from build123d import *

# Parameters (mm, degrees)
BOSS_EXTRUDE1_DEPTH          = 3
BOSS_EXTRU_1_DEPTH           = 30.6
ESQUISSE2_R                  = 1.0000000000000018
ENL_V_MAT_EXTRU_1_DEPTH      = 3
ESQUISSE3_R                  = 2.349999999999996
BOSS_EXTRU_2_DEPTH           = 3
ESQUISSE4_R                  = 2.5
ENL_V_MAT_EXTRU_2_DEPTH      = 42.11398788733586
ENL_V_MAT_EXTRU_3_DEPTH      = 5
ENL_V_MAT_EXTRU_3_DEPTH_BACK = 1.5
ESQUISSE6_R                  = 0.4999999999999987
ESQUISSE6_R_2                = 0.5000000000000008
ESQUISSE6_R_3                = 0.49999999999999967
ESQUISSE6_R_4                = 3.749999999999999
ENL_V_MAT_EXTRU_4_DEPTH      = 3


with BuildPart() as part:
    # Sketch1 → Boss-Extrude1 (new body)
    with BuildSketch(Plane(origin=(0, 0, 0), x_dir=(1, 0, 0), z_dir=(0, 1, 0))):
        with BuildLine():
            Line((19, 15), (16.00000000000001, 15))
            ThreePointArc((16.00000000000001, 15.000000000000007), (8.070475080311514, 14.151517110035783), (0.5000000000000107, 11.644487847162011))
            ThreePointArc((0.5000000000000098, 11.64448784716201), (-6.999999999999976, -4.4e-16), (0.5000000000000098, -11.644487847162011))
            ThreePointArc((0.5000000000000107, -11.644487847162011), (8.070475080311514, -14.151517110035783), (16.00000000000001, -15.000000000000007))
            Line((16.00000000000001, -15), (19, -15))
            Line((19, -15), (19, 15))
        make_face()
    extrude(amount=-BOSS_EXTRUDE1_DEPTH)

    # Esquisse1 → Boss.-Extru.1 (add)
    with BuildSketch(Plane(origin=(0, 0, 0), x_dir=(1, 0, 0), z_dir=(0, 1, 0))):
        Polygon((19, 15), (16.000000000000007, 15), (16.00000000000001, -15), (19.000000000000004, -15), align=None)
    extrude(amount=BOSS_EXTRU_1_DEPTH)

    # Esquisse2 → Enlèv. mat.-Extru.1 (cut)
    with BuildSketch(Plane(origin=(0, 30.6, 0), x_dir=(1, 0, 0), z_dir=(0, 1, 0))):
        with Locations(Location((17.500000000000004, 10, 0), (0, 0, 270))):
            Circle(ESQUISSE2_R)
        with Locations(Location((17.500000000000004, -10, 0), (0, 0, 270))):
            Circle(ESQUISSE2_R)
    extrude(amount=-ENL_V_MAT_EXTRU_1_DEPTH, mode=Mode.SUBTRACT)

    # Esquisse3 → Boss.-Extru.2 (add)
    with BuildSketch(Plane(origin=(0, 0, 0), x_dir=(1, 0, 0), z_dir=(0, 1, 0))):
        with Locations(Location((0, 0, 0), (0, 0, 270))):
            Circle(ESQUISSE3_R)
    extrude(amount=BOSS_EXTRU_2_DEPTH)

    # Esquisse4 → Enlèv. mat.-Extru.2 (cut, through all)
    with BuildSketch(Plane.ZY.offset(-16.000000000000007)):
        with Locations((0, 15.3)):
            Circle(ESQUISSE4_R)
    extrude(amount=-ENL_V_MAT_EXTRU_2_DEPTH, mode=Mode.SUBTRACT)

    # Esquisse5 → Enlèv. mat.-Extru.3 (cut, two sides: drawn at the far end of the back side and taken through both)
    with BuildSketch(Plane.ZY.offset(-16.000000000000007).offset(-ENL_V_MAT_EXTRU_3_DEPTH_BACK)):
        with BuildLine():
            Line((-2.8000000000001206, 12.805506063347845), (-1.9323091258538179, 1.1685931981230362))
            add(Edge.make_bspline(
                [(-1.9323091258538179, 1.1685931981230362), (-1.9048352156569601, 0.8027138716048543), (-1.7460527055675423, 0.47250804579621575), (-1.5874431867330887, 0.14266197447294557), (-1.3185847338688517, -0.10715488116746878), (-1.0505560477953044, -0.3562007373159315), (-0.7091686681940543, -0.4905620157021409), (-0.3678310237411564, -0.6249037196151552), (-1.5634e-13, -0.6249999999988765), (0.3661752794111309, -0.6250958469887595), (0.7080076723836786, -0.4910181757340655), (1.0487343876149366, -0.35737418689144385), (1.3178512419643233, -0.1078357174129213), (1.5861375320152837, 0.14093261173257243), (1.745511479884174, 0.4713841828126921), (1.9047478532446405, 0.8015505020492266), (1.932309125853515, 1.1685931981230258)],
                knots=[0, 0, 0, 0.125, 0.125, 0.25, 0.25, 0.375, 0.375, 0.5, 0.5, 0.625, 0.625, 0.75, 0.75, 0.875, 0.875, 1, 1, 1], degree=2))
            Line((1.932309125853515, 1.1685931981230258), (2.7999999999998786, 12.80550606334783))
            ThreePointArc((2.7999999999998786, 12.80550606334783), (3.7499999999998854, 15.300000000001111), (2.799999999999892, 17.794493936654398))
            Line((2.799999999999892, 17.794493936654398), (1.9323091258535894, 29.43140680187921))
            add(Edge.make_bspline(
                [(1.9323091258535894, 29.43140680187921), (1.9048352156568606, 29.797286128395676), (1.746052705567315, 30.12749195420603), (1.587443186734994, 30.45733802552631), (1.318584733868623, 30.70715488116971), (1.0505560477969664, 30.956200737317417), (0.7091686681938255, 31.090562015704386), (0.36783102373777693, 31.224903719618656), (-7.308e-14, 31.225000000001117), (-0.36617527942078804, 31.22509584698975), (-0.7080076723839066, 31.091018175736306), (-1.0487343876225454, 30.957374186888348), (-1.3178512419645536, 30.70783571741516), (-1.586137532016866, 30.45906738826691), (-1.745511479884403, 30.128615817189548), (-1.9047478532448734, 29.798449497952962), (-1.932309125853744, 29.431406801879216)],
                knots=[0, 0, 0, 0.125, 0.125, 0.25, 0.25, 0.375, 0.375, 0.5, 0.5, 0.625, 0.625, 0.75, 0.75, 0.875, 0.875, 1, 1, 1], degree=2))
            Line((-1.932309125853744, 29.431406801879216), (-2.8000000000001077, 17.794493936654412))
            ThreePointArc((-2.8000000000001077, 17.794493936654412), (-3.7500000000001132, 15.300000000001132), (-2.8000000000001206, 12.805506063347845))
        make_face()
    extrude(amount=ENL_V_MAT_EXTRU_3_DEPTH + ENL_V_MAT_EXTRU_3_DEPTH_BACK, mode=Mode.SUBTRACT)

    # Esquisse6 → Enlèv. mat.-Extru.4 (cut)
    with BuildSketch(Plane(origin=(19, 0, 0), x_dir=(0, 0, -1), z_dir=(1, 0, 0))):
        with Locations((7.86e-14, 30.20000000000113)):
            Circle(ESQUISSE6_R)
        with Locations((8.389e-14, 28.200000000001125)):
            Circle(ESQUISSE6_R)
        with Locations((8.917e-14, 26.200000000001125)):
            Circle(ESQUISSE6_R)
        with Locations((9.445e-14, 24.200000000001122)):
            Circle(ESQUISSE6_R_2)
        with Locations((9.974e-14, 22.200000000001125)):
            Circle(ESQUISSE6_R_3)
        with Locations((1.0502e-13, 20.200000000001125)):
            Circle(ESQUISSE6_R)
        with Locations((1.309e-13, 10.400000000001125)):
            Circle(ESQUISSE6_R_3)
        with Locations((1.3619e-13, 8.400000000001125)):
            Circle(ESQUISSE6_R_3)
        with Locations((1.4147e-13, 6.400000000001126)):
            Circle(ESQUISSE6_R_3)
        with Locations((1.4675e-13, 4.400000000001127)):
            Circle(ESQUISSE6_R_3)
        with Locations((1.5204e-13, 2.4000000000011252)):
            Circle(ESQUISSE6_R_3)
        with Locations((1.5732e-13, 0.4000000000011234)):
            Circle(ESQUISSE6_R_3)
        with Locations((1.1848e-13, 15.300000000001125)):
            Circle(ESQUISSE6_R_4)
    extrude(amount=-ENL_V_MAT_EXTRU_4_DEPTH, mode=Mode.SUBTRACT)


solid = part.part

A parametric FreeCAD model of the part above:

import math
import FreeCAD as App
import Part
import Sketcher
Q = App.Units.Quantity


def add_polygon(sketch, points):
    """Adds a closed chain of lines whose ends are joined by coincident constraints."""
    first, n = sketch.GeometryCount, len(points)
    for a, b in zip(points, points[1:] + points[:1]):
        sketch.addGeometry(Part.LineSegment(App.Vector(*a, 0), App.Vector(*b, 0)), False)
    for i in range(n):
        sketch.addConstraint(Sketcher.Constraint("Coincident", first + i, 2, first + (i + 1) % n, 1))

doc = App.newDocument("Part")
body = doc.addObject("PartDesign::Body", "Body")

sketch1 = doc.addObject("Sketcher::SketchObject", "Sketch")
body.addObject(sketch1)
sketch1.AttachmentSupport = (doc.XZ_Plane, [""])
sketch1.MapMode = "FlatFace"
sketch1.addGeometry(Part.LineSegment(App.Vector(19, -15, 0), App.Vector(16, -15, 0)), False)
sketch1.addGeometry(Part.ArcOfCircle(Part.Circle(App.Vector(16, 22.47706, 0), App.Vector(0, 0, 1), 37.47706), math.radians(-114.430323), math.radians(-90)), False)
sketch1.addGeometry(Part.ArcOfCircle(Part.Circle(App.Vector(5.789606, 0, 0), App.Vector(0, 0, 1), 12.789606), math.radians(114.430323), math.radians(245.569677)), False)
sketch1.addGeometry(Part.ArcOfCircle(Part.Circle(App.Vector(16, -22.47706, 0), App.Vector(0, 0, 1), 37.47706), math.radians(90), math.radians(114.430323)), False)
sketch1.addGeometry(Part.LineSegment(App.Vector(16, 15, 0), App.Vector(19, 15, 0)), False)
sketch1.addGeometry(Part.LineSegment(App.Vector(19, 15, 0), App.Vector(19, -15, 0)), False)
sketch1.addConstraint(Sketcher.Constraint("Tangent", 0, 2, 1, 2))
sketch1.addConstraint(Sketcher.Constraint("Tangent", 1, 1, 2, 2))
sketch1.addConstraint(Sketcher.Constraint("Tangent", 2, 1, 3, 2))
sketch1.addConstraint(Sketcher.Constraint("Tangent", 3, 1, 4, 1))
sketch1.addConstraint(Sketcher.Constraint("Coincident", 4, 2, 5, 1))
sketch1.addConstraint(Sketcher.Constraint("Coincident", 5, 2, 0, 1))
sketch1.addConstraint(Sketcher.Constraint("Horizontal", 0))
sketch1.addConstraint(Sketcher.Constraint("Horizontal", 4))
sketch1.addConstraint(Sketcher.Constraint("Vertical", 5))
sketch1.addConstraint(Sketcher.Constraint("Equal", 1, 3))
sketch1.addConstraint(Sketcher.Constraint("Symmetric", 1, 3, 3, 3, -1))
sketch1.addConstraint(Sketcher.Constraint("DistanceX", 0, 2, 0, 1, Q("3 mm")))
sketch1.addConstraint(Sketcher.Constraint("DistanceY", 5, 2, 5, 1, Q("30 mm")))
sketch1.addConstraint(Sketcher.Constraint("DistanceX", -1, 1, 1, 3, Q("16 mm")))
sketch1.addConstraint(Sketcher.Constraint("DistanceX", -1, 1, 1, 1, Q("0.5 mm")))
sketch1.addConstraint(Sketcher.Constraint("Radius", 1, Q("37.47706 mm")))
pad1 = doc.addObject("PartDesign::Pad", "Pad")
body.addObject(pad1)
pad1.Profile = sketch1
pad1.Length = 3

sketch2 = doc.addObject("Sketcher::SketchObject", "Sketch001")
body.addObject(sketch2)
sketch2.AttachmentSupport = (doc.XZ_Plane, [""])
sketch2.MapMode = "FlatFace"
add_polygon(sketch2, [(19, -15), (16, -15), (16, 15), (19, 15)])
sketch2.addConstraint(Sketcher.Constraint("Horizontal", 0))
sketch2.addConstraint(Sketcher.Constraint("Vertical", 1))
sketch2.addConstraint(Sketcher.Constraint("Horizontal", 2))
sketch2.addConstraint(Sketcher.Constraint("Vertical", 3))
sketch2.addConstraint(Sketcher.Constraint("DistanceX", 0, 2, 0, 1, Q("3 mm")))
sketch2.addConstraint(Sketcher.Constraint("DistanceY", 1, 1, 1, 2, Q("30 mm")))
sketch2.addConstraint(Sketcher.Constraint("DistanceX", -1, 1, 0, 2, Q("16 mm")))
sketch2.addConstraint(Sketcher.Constraint("DistanceY", 0, 2, -1, 1, Q("15 mm")))
pad2 = doc.addObject("PartDesign::Pad", "Pad001")
body.addObject(pad2)
pad2.Profile = sketch2
pad2.Length = 30.6
pad2.Reversed = True

sketch3 = doc.addObject("Sketcher::SketchObject", "Sketch002")
body.addObject(sketch3)
sketch3.AttachmentSupport = (doc.XZ_Plane, [""])
sketch3.MapMode = "FlatFace"
sketch3.AttachmentOffset = App.Placement(App.Vector(0, 0, -30.6), App.Rotation())
sketch3.addGeometry(Part.Circle(App.Vector(17.5, -10, 0), App.Vector(0, 0, 1), 1), False)
sketch3.addGeometry(Part.Circle(App.Vector(17.5, 10, 0), App.Vector(0, 0, 1), 1), False)
sketch3.addConstraint(Sketcher.Constraint("Equal", 0, 1))
sketch3.addConstraint(Sketcher.Constraint("Symmetric", 0, 3, 1, 3, -1))
sketch3.addConstraint(Sketcher.Constraint("Diameter", 0, Q("2 mm")))
sketch3.addConstraint(Sketcher.Constraint("DistanceY", 0, 3, -1, 1, Q("10 mm")))
sketch3.addConstraint(Sketcher.Constraint("DistanceX", -1, 1, 0, 3, Q("17.5 mm")))
pocket1 = doc.addObject("PartDesign::Pocket", "Pocket")
body.addObject(pocket1)
pocket1.Profile = sketch3
pocket1.Length = 3
pocket1.Reversed = True

sketch4 = doc.addObject("Sketcher::SketchObject", "Sketch003")
body.addObject(sketch4)
sketch4.AttachmentSupport = (doc.XZ_Plane, [""])
sketch4.MapMode = "FlatFace"
sketch4.addGeometry(Part.Circle(App.Vector(0, 0, 0), App.Vector(0, 0, 1), 2.35), False)
sketch4.addConstraint(Sketcher.Constraint("Coincident", 0, 3, -1, 1))
sketch4.addConstraint(Sketcher.Constraint("Diameter", 0, Q("4.7 mm")))
pad3 = doc.addObject("PartDesign::Pad", "Pad002")
body.addObject(pad3)
pad3.Profile = sketch4
pad3.Length = 3
pad3.Reversed = True

sketch5 = doc.addObject("Sketcher::SketchObject", "Sketch004")
body.addObject(sketch5)
sketch5.AttachmentSupport = (doc.YZ_Plane, [""])
sketch5.MapMode = "FlatFace"
sketch5.AttachmentOffset = App.Placement(App.Vector(0, 0, 16), App.Rotation())
sketch5.addGeometry(Part.Circle(App.Vector(15.3, 0, 0), App.Vector(0, 0, 1), 2.5), False)
sketch5.addConstraint(Sketcher.Constraint("PointOnObject", 0, 3, -1))
sketch5.addConstraint(Sketcher.Constraint("Diameter", 0, Q("5 mm")))
sketch5.addConstraint(Sketcher.Constraint("DistanceX", -1, 1, 0, 3, Q("15.3 mm")))
pocket2 = doc.addObject("PartDesign::Pocket", "Pocket001")
body.addObject(pocket2)
pocket2.Profile = sketch5
pocket2.Type = "ThroughAll"
pocket2.Reversed = True

sketch6 = doc.addObject("Sketcher::SketchObject", "Sketch005")
body.addObject(sketch6)
sketch6.AttachmentSupport = (doc.YZ_Plane, [""])
sketch6.MapMode = "FlatFace"
sketch6.AttachmentOffset = App.Placement(App.Vector(0, 0, 16), App.Rotation())
sketch6.addGeometry(Part.LineSegment(App.Vector(12.805506, -2.8, 0), App.Vector(1.168593, -1.932309, 0)), False)
sketch6.addGeometry(Part.BSplineCurve([App.Vector(1.168593, -1.932309, 0), App.Vector(0.802714, -1.904835, 0), App.Vector(0.472508, -1.746053, 0), App.Vector(0.142662, -1.587443, 0), App.Vector(-0.107155, -1.318585, 0), App.Vector(-0.356201, -1.050556, 0), App.Vector(-0.490562, -0.709169, 0), App.Vector(-0.624904, -0.367831, 0), App.Vector(-0.625, 0, 0), App.Vector(-0.625096, 0.366175, 0), App.Vector(-0.491018, 0.708008, 0), App.Vector(-0.357374, 1.048734, 0), App.Vector(-0.107836, 1.317851, 0), App.Vector(0.140933, 1.586138, 0), App.Vector(0.471384, 1.745511, 0), App.Vector(0.801551, 1.904748, 0), App.Vector(1.168593, 1.932309, 0)], [3, 2, 2, 2, 2, 2, 2, 2, 3], [0, 0.125, 0.25, 0.375, 0.5, 0.625, 0.75, 0.875, 1], False, 2, [1, 1, 1, 1, 1, 1, 1, 1, 1, 1, 1, 1, 1, 1, 1, 1, 1], False), False)
sketch6.addGeometry(Part.LineSegment(App.Vector(1.168593, 1.932309, 0), App.Vector(12.805506, 2.8, 0)), False)
sketch6.addGeometry(Part.ArcOfCircle(Part.Circle(App.Vector(15.3, 0, 0), App.Vector(0, 0, 1), 3.75), math.radians(48.302453), math.radians(131.697547)), False)
sketch6.addGeometry(Part.LineSegment(App.Vector(17.794494, 2.8, 0), App.Vector(29.431407, 1.932309, 0)), False)
sketch6.addGeometry(Part.BSplineCurve([App.Vector(29.431407, 1.932309, 0), App.Vector(29.797286, 1.904835, 0), App.Vector(30.127492, 1.746053, 0), App.Vector(30.457338, 1.587443, 0), App.Vector(30.707155, 1.318585, 0), App.Vector(30.956201, 1.050556, 0), App.Vector(31.090562, 0.709169, 0), App.Vector(31.224904, 0.367831, 0), App.Vector(31.225, 0, 0), App.Vector(31.225096, -0.366175, 0), App.Vector(31.091018, -0.708008, 0), App.Vector(30.957374, -1.048734, 0), App.Vector(30.707836, -1.317851, 0), App.Vector(30.459067, -1.586138, 0), App.Vector(30.128616, -1.745511, 0), App.Vector(29.798449, -1.904748, 0), App.Vector(29.431407, -1.932309, 0)], [3, 2, 2, 2, 2, 2, 2, 2, 3], [0, 0.125, 0.25, 0.375, 0.5, 0.625, 0.75, 0.875, 1], False, 2, [1, 1, 1, 1, 1, 1, 1, 1, 1, 1, 1, 1, 1, 1, 1, 1, 1], False), False)
sketch6.addGeometry(Part.LineSegment(App.Vector(29.431407, -1.932309, 0), App.Vector(17.794494, -2.8, 0)), False)
sketch6.addGeometry(Part.ArcOfCircle(Part.Circle(App.Vector(15.3, 0, 0), App.Vector(0, 0, 1), 3.75), math.radians(-131.697547), math.radians(-48.302453)), False)
sketch6.addConstraint(Sketcher.Constraint("Block", 1))
sketch6.addConstraint(Sketcher.Constraint("Block", 5))
sketch6.addConstraint(Sketcher.Constraint("Coincident", 0, 2, 1, 1))
sketch6.addConstraint(Sketcher.Constraint("Coincident", 1, 2, 2, 1))
sketch6.addConstraint(Sketcher.Constraint("Coincident", 2, 2, 3, 2))
sketch6.addConstraint(Sketcher.Constraint("Coincident", 3, 1, 4, 1))
sketch6.addConstraint(Sketcher.Constraint("Coincident", 4, 2, 5, 1))
sketch6.addConstraint(Sketcher.Constraint("Coincident", 5, 2, 6, 1))
sketch6.addConstraint(Sketcher.Constraint("Coincident", 6, 2, 7, 2))
sketch6.addConstraint(Sketcher.Constraint("Coincident", 7, 1, 0, 1))
sketch6.addConstraint(Sketcher.Constraint("Coincident", 7, 3, 3, 3))
sketch6.addConstraint(Sketcher.Constraint("PointOnObject", 3, 3, -1))
sketch6.addConstraint(Sketcher.Constraint("Radius", 3, Q("3.75 mm")))
sketch6.addConstraint(Sketcher.Constraint("Radius", 7, Q("3.75 mm")))
sketch6.addConstraint(Sketcher.Constraint("DistanceX", -1, 1, 3, 3, Q("15.3 mm")))
sketch6.addConstraint(Sketcher.Constraint("DistanceY", -1, 1, 2, 2, Q("2.8 mm")))
sketch6.addConstraint(Sketcher.Constraint("DistanceY", -1, 1, 3, 1, Q("2.8 mm")))
sketch6.addConstraint(Sketcher.Constraint("DistanceY", 6, 2, -1, 1, Q("2.8 mm")))
sketch6.addConstraint(Sketcher.Constraint("DistanceY", 7, 1, -1, 1, Q("2.8 mm")))
pocket3 = doc.addObject("PartDesign::Pocket", "Pocket002")
body.addObject(pocket3)
pocket3.Profile = sketch6
pocket3.Type = "TwoLengths"
pocket3.Length = 5
pocket3.Length2 = 1.5

sketch7 = doc.addObject("Sketcher::SketchObject", "Sketch006")
body.addObject(sketch7)
sketch7.AttachmentSupport = (doc.YZ_Plane, [""])
sketch7.MapMode = "FlatFace"
sketch7.AttachmentOffset = App.Placement(App.Vector(0, 0, 19), App.Rotation())
sketch7.addGeometry(Part.Circle(App.Vector(30.2, 0, 0), App.Vector(0, 0, 1), 0.5), False)
sketch7.addGeometry(Part.Circle(App.Vector(28.2, 0, 0), App.Vector(0, 0, 1), 0.5), False)
sketch7.addGeometry(Part.Circle(App.Vector(26.2, 0, 0), App.Vector(0, 0, 1), 0.5), False)
sketch7.addGeometry(Part.Circle(App.Vector(24.2, 0, 0), App.Vector(0, 0, 1), 0.5), False)
sketch7.addGeometry(Part.Circle(App.Vector(22.2, 0, 0), App.Vector(0, 0, 1), 0.5), False)
sketch7.addGeometry(Part.Circle(App.Vector(20.2, 0, 0), App.Vector(0, 0, 1), 0.5), False)
sketch7.addGeometry(Part.Circle(App.Vector(10.4, 0, 0), App.Vector(0, 0, 1), 0.5), False)
sketch7.addGeometry(Part.Circle(App.Vector(8.4, 0, 0), App.Vector(0, 0, 1), 0.5), False)
sketch7.addGeometry(Part.Circle(App.Vector(6.4, 0, 0), App.Vector(0, 0, 1), 0.5), False)
sketch7.addGeometry(Part.Circle(App.Vector(4.4, 0, 0), App.Vector(0, 0, 1), 0.5), False)
sketch7.addGeometry(Part.Circle(App.Vector(2.4, 0, 0), App.Vector(0, 0, 1), 0.5), False)
sketch7.addGeometry(Part.Circle(App.Vector(0.4, 0, 0), App.Vector(0, 0, 1), 0.5), False)
sketch7.addGeometry(Part.Circle(App.Vector(15.3, 0, 0), App.Vector(0, 0, 1), 3.75), False)
sketch7.addConstraint(Sketcher.Constraint("Equal", 0, 1))
sketch7.addConstraint(Sketcher.Constraint("Equal", 1, 2))
sketch7.addConstraint(Sketcher.Constraint("Equal", 2, 3))
sketch7.addConstraint(Sketcher.Constraint("Equal", 3, 4))
sketch7.addConstraint(Sketcher.Constraint("Equal", 4, 5))
sketch7.addConstraint(Sketcher.Constraint("Equal", 5, 6))
sketch7.addConstraint(Sketcher.Constraint("Equal", 6, 7))
sketch7.addConstraint(Sketcher.Constraint("Equal", 7, 8))
sketch7.addConstraint(Sketcher.Constraint("Equal", 8, 9))
sketch7.addConstraint(Sketcher.Constraint("Equal", 9, 10))
sketch7.addConstraint(Sketcher.Constraint("Equal", 10, 11))
sketch7.addConstraint(Sketcher.Constraint("PointOnObject", 0, 3, -1))
sketch7.addConstraint(Sketcher.Constraint("PointOnObject", 1, 3, -1))
sketch7.addConstraint(Sketcher.Constraint("PointOnObject", 2, 3, -1))
sketch7.addConstraint(Sketcher.Constraint("PointOnObject", 3, 3, -1))
sketch7.addConstraint(Sketcher.Constraint("PointOnObject", 4, 3, -1))
sketch7.addConstraint(Sketcher.Constraint("PointOnObject", 5, 3, -1))
sketch7.addConstraint(Sketcher.Constraint("PointOnObject", 6, 3, -1))
sketch7.addConstraint(Sketcher.Constraint("PointOnObject", 7, 3, -1))
sketch7.addConstraint(Sketcher.Constraint("PointOnObject", 8, 3, -1))
sketch7.addConstraint(Sketcher.Constraint("PointOnObject", 9, 3, -1))
sketch7.addConstraint(Sketcher.Constraint("PointOnObject", 10, 3, -1))
sketch7.addConstraint(Sketcher.Constraint("PointOnObject", 11, 3, -1))
sketch7.addConstraint(Sketcher.Constraint("PointOnObject", 12, 3, -1))
sketch7.addConstraint(Sketcher.Constraint("Diameter", 0, Q("1 mm")))
sketch7.addConstraint(Sketcher.Constraint("Diameter", 12, Q("7.5 mm")))
sketch7.addConstraint(Sketcher.Constraint("DistanceX", 1, 3, 0, 3, Q("2 mm")))
sketch7.addConstraint(Sketcher.Constraint("DistanceX", 2, 3, 1, 3, Q("2 mm")))
sketch7.addConstraint(Sketcher.Constraint("DistanceX", 3, 3, 2, 3, Q("2 mm")))
sketch7.addConstraint(Sketcher.Constraint("DistanceX", 4, 3, 3, 3, Q("2 mm")))
sketch7.addConstraint(Sketcher.Constraint("DistanceX", 5, 3, 4, 3, Q("2 mm")))
sketch7.addConstraint(Sketcher.Constraint("DistanceX", 7, 3, 6, 3, Q("2 mm")))
sketch7.addConstraint(Sketcher.Constraint("DistanceX", 8, 3, 7, 3, Q("2 mm")))
sketch7.addConstraint(Sketcher.Constraint("DistanceX", 9, 3, 8, 3, Q("2 mm")))
sketch7.addConstraint(Sketcher.Constraint("DistanceX", 10, 3, 9, 3, Q("2 mm")))
sketch7.addConstraint(Sketcher.Constraint("DistanceX", 11, 3, 10, 3, Q("2 mm")))
sketch7.addConstraint(Sketcher.Constraint("DistanceX", -1, 1, 0, 3, Q("30.2 mm")))
sketch7.addConstraint(Sketcher.Constraint("DistanceX", -1, 1, 6, 3, Q("10.4 mm")))
sketch7.addConstraint(Sketcher.Constraint("DistanceX", -1, 1, 12, 3, Q("15.3 mm")))
pocket4 = doc.addObject("PartDesign::Pocket", "Pocket003")
body.addObject(pocket4)
pocket4.Profile = sketch7
pocket4.Length = 3

doc.recompute()
